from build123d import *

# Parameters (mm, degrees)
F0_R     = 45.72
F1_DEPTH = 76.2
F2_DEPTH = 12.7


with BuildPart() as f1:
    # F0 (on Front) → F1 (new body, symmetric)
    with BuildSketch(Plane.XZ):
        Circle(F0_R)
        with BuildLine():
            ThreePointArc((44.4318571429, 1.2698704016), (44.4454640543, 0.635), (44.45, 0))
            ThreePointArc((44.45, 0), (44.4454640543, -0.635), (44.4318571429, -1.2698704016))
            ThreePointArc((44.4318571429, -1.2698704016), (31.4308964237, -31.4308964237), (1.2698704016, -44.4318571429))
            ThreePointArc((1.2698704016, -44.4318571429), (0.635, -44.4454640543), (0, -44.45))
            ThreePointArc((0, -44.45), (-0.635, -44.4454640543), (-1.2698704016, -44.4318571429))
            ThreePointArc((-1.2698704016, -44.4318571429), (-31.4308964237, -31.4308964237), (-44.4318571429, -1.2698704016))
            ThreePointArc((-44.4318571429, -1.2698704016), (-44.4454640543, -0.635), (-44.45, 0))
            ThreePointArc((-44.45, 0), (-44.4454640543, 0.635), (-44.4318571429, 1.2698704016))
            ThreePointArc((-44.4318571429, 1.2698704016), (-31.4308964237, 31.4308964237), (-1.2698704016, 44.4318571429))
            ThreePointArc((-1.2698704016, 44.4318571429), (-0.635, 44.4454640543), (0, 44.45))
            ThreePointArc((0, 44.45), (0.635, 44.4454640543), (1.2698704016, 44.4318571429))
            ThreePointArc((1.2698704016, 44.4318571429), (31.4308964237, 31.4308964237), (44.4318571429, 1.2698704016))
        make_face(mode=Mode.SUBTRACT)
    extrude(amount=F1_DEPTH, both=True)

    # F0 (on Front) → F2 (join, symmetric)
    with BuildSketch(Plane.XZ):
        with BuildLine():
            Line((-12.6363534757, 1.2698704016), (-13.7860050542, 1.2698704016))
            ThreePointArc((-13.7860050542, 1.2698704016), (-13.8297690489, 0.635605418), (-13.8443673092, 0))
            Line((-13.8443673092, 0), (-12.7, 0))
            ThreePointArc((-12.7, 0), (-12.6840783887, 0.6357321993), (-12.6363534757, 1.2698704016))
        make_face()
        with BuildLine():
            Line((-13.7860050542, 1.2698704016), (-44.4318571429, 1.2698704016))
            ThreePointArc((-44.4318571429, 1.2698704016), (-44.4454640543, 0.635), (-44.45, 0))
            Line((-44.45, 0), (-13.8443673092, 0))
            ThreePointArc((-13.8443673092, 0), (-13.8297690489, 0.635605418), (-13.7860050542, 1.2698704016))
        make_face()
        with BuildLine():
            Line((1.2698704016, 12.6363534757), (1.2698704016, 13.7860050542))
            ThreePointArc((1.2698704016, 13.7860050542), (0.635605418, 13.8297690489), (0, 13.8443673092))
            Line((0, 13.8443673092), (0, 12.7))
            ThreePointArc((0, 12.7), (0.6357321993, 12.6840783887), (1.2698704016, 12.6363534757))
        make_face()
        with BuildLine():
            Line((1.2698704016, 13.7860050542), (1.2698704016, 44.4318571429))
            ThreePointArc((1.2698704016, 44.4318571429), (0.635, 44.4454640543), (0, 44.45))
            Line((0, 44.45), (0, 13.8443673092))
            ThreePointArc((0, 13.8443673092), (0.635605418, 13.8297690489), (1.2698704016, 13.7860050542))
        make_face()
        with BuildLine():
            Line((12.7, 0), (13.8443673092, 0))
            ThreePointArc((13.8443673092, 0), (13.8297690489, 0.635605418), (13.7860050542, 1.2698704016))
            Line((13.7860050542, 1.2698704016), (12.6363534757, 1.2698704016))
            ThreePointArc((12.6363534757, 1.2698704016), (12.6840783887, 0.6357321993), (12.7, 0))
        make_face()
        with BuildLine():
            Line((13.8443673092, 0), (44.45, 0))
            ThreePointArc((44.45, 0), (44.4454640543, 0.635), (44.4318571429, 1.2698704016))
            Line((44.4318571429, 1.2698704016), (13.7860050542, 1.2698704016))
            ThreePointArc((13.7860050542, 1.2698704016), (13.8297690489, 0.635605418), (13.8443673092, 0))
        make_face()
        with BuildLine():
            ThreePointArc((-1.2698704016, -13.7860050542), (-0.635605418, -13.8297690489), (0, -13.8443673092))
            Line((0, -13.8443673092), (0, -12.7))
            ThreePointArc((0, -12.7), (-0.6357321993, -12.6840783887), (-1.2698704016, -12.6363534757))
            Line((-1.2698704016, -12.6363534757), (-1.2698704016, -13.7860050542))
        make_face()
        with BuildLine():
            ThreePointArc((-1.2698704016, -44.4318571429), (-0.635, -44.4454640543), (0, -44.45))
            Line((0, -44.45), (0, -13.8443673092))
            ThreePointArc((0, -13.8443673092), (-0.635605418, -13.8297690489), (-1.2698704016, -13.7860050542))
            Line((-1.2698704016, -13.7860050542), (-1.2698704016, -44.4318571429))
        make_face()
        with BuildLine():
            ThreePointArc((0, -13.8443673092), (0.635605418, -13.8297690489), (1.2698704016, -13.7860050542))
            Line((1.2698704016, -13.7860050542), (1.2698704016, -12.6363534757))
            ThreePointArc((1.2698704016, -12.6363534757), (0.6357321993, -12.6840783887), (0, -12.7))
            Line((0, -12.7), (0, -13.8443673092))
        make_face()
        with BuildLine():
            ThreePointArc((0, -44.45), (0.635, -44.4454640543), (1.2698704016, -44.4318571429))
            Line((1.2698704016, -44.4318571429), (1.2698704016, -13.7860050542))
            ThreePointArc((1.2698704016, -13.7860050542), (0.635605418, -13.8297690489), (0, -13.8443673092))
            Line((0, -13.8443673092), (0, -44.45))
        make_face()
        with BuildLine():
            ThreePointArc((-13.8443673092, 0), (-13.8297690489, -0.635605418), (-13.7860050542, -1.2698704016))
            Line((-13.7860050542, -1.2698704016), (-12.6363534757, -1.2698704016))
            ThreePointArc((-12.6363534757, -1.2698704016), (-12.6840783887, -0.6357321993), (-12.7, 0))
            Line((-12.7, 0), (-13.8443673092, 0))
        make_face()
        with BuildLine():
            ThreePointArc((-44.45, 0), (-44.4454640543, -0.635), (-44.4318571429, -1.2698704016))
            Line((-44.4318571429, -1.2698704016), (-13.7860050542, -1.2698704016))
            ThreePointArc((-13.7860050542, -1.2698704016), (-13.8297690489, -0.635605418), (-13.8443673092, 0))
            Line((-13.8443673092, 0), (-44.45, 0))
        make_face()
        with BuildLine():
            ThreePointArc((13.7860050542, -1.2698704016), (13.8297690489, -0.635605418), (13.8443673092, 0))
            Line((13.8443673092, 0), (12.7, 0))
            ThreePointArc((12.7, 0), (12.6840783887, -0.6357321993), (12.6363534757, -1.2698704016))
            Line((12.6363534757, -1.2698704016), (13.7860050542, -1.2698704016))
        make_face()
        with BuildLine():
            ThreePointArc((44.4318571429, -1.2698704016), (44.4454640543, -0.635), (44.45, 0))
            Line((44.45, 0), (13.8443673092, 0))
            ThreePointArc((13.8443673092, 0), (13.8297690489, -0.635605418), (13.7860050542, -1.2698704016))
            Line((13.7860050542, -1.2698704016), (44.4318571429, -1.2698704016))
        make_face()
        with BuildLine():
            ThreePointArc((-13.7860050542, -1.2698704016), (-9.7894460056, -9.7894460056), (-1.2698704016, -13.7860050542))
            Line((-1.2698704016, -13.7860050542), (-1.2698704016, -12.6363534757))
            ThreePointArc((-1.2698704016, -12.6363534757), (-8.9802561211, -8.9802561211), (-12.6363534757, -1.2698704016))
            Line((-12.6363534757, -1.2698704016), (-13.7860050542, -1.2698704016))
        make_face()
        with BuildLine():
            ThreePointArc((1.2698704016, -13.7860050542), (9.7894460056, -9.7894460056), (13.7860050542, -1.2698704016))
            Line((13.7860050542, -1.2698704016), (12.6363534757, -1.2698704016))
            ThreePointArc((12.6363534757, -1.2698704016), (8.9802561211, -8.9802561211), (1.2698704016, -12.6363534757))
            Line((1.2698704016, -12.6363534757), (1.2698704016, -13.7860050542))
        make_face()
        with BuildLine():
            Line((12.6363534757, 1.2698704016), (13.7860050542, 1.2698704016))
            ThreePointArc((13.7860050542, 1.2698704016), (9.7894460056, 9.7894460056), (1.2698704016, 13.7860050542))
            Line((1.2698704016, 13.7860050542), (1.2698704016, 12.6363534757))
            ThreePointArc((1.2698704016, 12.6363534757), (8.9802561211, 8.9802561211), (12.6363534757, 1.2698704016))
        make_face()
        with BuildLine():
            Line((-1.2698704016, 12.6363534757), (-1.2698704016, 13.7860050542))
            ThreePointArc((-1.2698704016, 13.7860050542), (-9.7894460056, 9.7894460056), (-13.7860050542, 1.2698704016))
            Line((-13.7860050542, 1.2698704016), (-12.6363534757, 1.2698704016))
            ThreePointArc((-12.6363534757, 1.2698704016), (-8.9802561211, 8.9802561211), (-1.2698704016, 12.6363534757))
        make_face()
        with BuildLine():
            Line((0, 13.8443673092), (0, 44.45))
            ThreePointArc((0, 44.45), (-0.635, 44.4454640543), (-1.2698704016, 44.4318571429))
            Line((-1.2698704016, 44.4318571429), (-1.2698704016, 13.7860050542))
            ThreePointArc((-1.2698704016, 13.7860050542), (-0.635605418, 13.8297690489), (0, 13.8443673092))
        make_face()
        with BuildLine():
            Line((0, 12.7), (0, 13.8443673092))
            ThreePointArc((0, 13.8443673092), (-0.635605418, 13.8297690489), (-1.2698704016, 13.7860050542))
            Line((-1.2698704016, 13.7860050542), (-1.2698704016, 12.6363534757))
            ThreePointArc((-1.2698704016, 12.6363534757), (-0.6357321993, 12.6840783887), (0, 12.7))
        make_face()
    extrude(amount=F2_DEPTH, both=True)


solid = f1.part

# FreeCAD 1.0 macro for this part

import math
import FreeCAD as App
import Part
import Sketcher

V = App.Vector
Q = App.Units.Quantity

doc = App.newDocument("Part")
body = doc.addObject("PartDesign::Body", "Body")

# Sketch on XZ plane
sketch1 = doc.addObject("Sketcher::SketchObject", "Sketch")
body.addObject(sketch1)
sketch1.AttachmentSupport = (doc.XZ_Plane, [""])
sketch1.MapMode = "FlatFace"
sketch1.addGeometry([
    Part.Circle(V(0, 0, 0), V(0, 0, 1), 45.72),  # 0
    Part.ArcOfCircle(Part.Circle(V(0, 0, 0), V(0, 0, 1), 44.45), math.radians(1.637078), math.radians(88.362922)),  # 1
    Part.ArcOfCircle(Part.Circle(V(0, 0, 0), V(0, 0, 1), 44.45), math.radians(0), math.radians(1.637078)),  # 2
    Part.ArcOfCircle(Part.Circle(V(0, 0, 0), V(0, 0, 1), 44.45), math.radians(-1.637078), math.radians(0)),  # 3
    Part.ArcOfCircle(Part.Circle(V(0, 0, 0), V(0, 0, 1), 44.45), math.radians(-88.362922), math.radians(-1.637078)),  # 4
    Part.ArcOfCircle(Part.Circle(V(0, 0, 0), V(0, 0, 1), 44.45), math.radians(-90), math.radians(-88.362922)),  # 5
    Part.ArcOfCircle(Part.Circle(V(0, 0, 0), V(0, 0, 1), 44.45), math.radians(-91.637078), math.radians(-90)),  # 6
    Part.ArcOfCircle(Part.Circle(V(0, 0, 0), V(0, 0, 1), 44.45), math.radians(-178.362922), math.radians(-91.637078)),  # 7
    Part.ArcOfCircle(Part.Circle(V(0, 0, 0), V(0, 0, 1), 44.45), math.radians(180), math.radians(181.637078)),  # 8
    Part.ArcOfCircle(Part.Circle(V(0, 0, 0), V(0, 0, 1), 44.45), math.radians(178.362922), math.radians(180)),  # 9
    Part.ArcOfCircle(Part.Circle(V(0, 0, 0), V(0, 0, 1), 44.45), math.radians(91.637078), math.radians(178.362922)),  # 10
    Part.ArcOfCircle(Part.Circle(V(0, 0, 0), V(0, 0, 1), 44.45), math.radians(90), math.radians(91.637078)),  # 11
    Part.ArcOfCircle(Part.Circle(V(0, 0, 0), V(0, 0, 1), 44.45), math.radians(88.362922), math.radians(90)),  # 12
], False)
sketch1.addConstraint([
    Sketcher.Constraint("Tangent", 1, 1, 2, 2),
    Sketcher.Constraint("Tangent", 2, 1, 3, 2),
    Sketcher.Constraint("Tangent", 3, 1, 4, 2),
    Sketcher.Constraint("Tangent", 4, 1, 5, 2),
    Sketcher.Constraint("Tangent", 5, 1, 6, 2),
    Sketcher.Constraint("Tangent", 6, 1, 7, 2),
    Sketcher.Constraint("Tangent", 7, 1, 8, 2),
    Sketcher.Constraint("Tangent", 8, 1, 9, 2),
    Sketcher.Constraint("Tangent", 9, 1, 10, 2),
    Sketcher.Constraint("Tangent", 10, 1, 11, 2),
    Sketcher.Constraint("Tangent", 11, 1, 12, 2),
    Sketcher.Constraint("Tangent", 12, 1, 1, 2),
    Sketcher.Constraint("Coincident", 0, 3, -1, 1),
    Sketcher.Constraint("Coincident", 1, 3, -1, 1),
    Sketcher.Constraint("Coincident", 3, 3, -1, 1),
    Sketcher.Constraint("Coincident", 5, 3, -1, 1),
    Sketcher.Constraint("Coincident", 7, 3, -1, 1),
    Sketcher.Constraint("Coincident", 9, 3, -1, 1),
    Sketcher.Constraint("Equal", 10, 11),
    Sketcher.Constraint("PointOnObject", 2, 1, -1),
    Sketcher.Constraint("PointOnObject", 5, 1, -2),
    Sketcher.Constraint("PointOnObject", 8, 1, -1),
    Sketcher.Constraint("PointOnObject", 11, 1, -2),
    Sketcher.Constraint("Horizontal", 4, 1, 6, 1),
    Sketcher.Constraint("Horizontal", 3, 1, 7, 1),
    Sketcher.Constraint("Horizontal", 1, 1, 9, 1),
    Sketcher.Constraint("Horizontal", 10, 1, 12, 1),
    Sketcher.Constraint("Vertical", 1, 1, 3, 1),
    Sketcher.Constraint("Vertical", 6, 1, 10, 1),
    Sketcher.Constraint("Diameter", 0, Q("3.6 in")),
    Sketcher.Constraint("Radius", 1, Q("1.75 in")),
    Sketcher.Constraint("DistanceY", -1, 1, 1, 1, 1.26987),
    Sketcher.Constraint("DistanceX", -1, 1, 4, 1, 1.26987),
])
pad1 = doc.addObject("PartDesign::Pad", "Pad")
body.addObject(pad1)
pad1.Profile = sketch1
pad1.Length = Q("6 in")
pad1.Midplane = True

# Sketch on XZ plane
sketch2 = doc.addObject("Sketcher::SketchObject", "Sketch001")
body.addObject(sketch2)
sketch2.AttachmentSupport = (doc.XZ_Plane, [""])
sketch2.MapMode = "FlatFace"
sketch2.addGeometry([
    Part.LineSegment(V(-1.26987, 44.431857, 0), V(-1.26987, 13.786005, 0)),  # 0
    Part.ArcOfCircle(Part.Circle(V(0, 0, 0), V(0, 0, 1), 13.844367), math.radians(95.262835), math.radians(174.737165)),  # 1
    Part.LineSegment(V(-13.786005, 1.26987, 0), V(-44.431857, 1.26987, 0)),  # 2
    Part.ArcOfCircle(Part.Circle(V(0, 0, 0), V(0, 0, 1), 44.45), math.radians(178.362922), math.radians(180)),  # 3
    Part.ArcOfCircle(Part.Circle(V(0, 0, 0), V(0, 0, 1), 44.45), math.radians(180), math.radians(181.637078)),  # 4
    Part.LineSegment(V(-44.431857, -1.26987, 0), V(-13.786005, -1.26987, 0)),  # 5
    Part.ArcOfCircle(Part.Circle(V(0, 0, 0), V(0, 0, 1), 13.844367), math.radians(-174.737165), math.radians(-95.262835)),  # 6
    Part.LineSegment(V(-1.26987, -13.786005, 0), V(-1.26987, -44.431857, 0)),  # 7
    Part.ArcOfCircle(Part.Circle(V(0, 0, 0), V(0, 0, 1), 44.45), math.radians(-91.637078), math.radians(-90)),  # 8
    Part.ArcOfCircle(Part.Circle(V(0, 0, 0), V(0, 0, 1), 44.45), math.radians(-90), math.radians(-88.362922)),  # 9
    Part.LineSegment(V(1.26987, -44.431857, 0), V(1.26987, -13.786005, 0)),  # 10
    Part.ArcOfCircle(Part.Circle(V(0, 0, 0), V(0, 0, 1), 13.844367), math.radians(-84.737165), math.radians(-5.262835)),  # 11
    Part.LineSegment(V(13.786005, -1.26987, 0), V(44.431857, -1.26987, 0)),  # 12
    Part.ArcOfCircle(Part.Circle(V(0, 0, 0), V(0, 0, 1), 44.45), math.radians(-1.637078), math.radians(0)),  # 13
    Part.ArcOfCircle(Part.Circle(V(0, 0, 0), V(0, 0, 1), 44.45), math.radians(0), math.radians(1.637078)),  # 14
    Part.LineSegment(V(44.431857, 1.26987, 0), V(13.786005, 1.26987, 0)),  # 15
    Part.ArcOfCircle(Part.Circle(V(0, 0, 0), V(0, 0, 1), 13.844367), math.radians(5.262835), math.radians(84.737165)),  # 16
    Part.LineSegment(V(1.26987, 13.786005, 0), V(1.26987, 44.431857, 0)),  # 17
    Part.ArcOfCircle(Part.Circle(V(0, 0, 0), V(0, 0, 1), 44.45), math.radians(88.362922), math.radians(90)),  # 18
    Part.ArcOfCircle(Part.Circle(V(0, 0, 0), V(0, 0, 1), 44.45), math.radians(90), math.radians(91.637078)),  # 19
    Part.ArcOfCircle(Part.Circle(V(0, 0, 0), V(0, 0, 1), 12.7), math.radians(95.738583), math.radians(174.261417)),  # 20
    Part.ArcOfCircle(Part.Circle(V(0, 0, 0), V(0, 0, 1), 12.7), math.radians(90), math.radians(95.738583)),  # 21
    Part.ArcOfCircle(Part.Circle(V(0, 0, 0), V(0, 0, 1), 12.7), math.radians(84.261417), math.radians(90)),  # 22
    Part.ArcOfCircle(Part.Circle(V(0, 0, 0), V(0, 0, 1), 12.7), math.radians(5.738583), math.radians(84.261417)),  # 23
    Part.ArcOfCircle(Part.Circle(V(0, 0, 0), V(0, 0, 1), 12.7), math.radians(0), math.radians(5.738583)),  # 24
    Part.ArcOfCircle(Part.Circle(V(0, 0, 0), V(0, 0, 1), 12.7), math.radians(-5.738583), math.radians(0)),  # 25
    Part.ArcOfCircle(Part.Circle(V(0, 0, 0), V(0, 0, 1), 12.7), math.radians(-84.261417), math.radians(-5.738583)),  # 26
    Part.ArcOfCircle(Part.Circle(V(0, 0, 0), V(0, 0, 1), 12.7), math.radians(-90), math.radians(-84.261417)),  # 27
    Part.ArcOfCircle(Part.Circle(V(0, 0, 0), V(0, 0, 1), 12.7), math.radians(-95.738583), math.radians(-90)),  # 28
    Part.ArcOfCircle(Part.Circle(V(0, 0, 0), V(0, 0, 1), 12.7), math.radians(-174.261417), math.radians(-95.738583)),  # 29
    Part.ArcOfCircle(Part.Circle(V(0, 0, 0), V(0, 0, 1), 12.7), math.radians(180), math.radians(185.738583)),  # 30
    Part.ArcOfCircle(Part.Circle(V(0, 0, 0), V(0, 0, 1), 12.7), math.radians(174.261417), math.radians(180)),  # 31
], False)
sketch2.addConstraint([
    Sketcher.Constraint("Coincident", 0, 2, 1, 1),
    Sketcher.Constraint("Coincident", 1, 2, 2, 1),
    Sketcher.Constraint("Coincident", 2, 2, 3, 1),
    Sketcher.Constraint("Tangent", 3, 2, 4, 1),
    Sketcher.Constraint("Coincident", 4, 2, 5, 1),
    Sketcher.Constraint("Coincident", 5, 2, 6, 1),
    Sketcher.Constraint("Coincident", 6, 2, 7, 1),
    Sketcher.Constraint("Coincident", 7, 2, 8, 1),
    Sketcher.Constraint("Tangent", 8, 2, 9, 1),
    Sketcher.Constraint("Coincident", 9, 2, 10, 1),
    Sketcher.Constraint("Coincident", 10, 2, 11, 1),
    Sketcher.Constraint("Coincident", 11, 2, 12, 1),
    Sketcher.Constraint("Coincident", 12, 2, 13, 1),
    Sketcher.Constraint("Tangent", 13, 2, 14, 1),
    Sketcher.Constraint("Coincident", 14, 2, 15, 1),
    Sketcher.Constraint("Coincident", 15, 2, 16, 1),
    Sketcher.Constraint("Coincident", 16, 2, 17, 1),
    Sketcher.Constraint("Coincident", 17, 2, 18, 1),
    Sketcher.Constraint("Tangent", 18, 2, 19, 1),
    Sketcher.Constraint("Coincident", 19, 2, 0, 1),
    Sketcher.Constraint("Tangent", 20, 1, 21, 2),
    Sketcher.Constraint("Tangent", 21, 1, 22, 2),
    Sketcher.Constraint("Tangent", 22, 1, 23, 2),
    Sketcher.Constraint("Tangent", 23, 1, 24, 2),
    Sketcher.Constraint("Tangent", 24, 1, 25, 2),
    Sketcher.Constraint("Tangent", 25, 1, 26, 2),
    Sketcher.Constraint("Tangent", 26, 1, 27, 2),
    Sketcher.Constraint("Tangent", 27, 1, 28, 2),
    Sketcher.Constraint("Tangent", 28, 1, 29, 2),
    Sketcher.Constraint("Tangent", 29, 1, 30, 2),
    Sketcher.Constraint("Tangent", 30, 1, 31, 2),
    Sketcher.Constraint("Tangent", 31, 1, 20, 2),
    Sketcher.Constraint("Vertical", 0),
    Sketcher.Constraint("Horizontal", 2),
    Sketcher.Constraint("Horizontal", 5),
    Sketcher.Constraint("Vertical", 7),
    Sketcher.Constraint("Vertical", 10),
    Sketcher.Constraint("Horizontal", 12),
    Sketcher.Constraint("Horizontal", 15),
    Sketcher.Constraint("Vertical", 17),
    Sketcher.Constraint("Coincident", 1, 3, -1, 1),
    Sketcher.Constraint("Coincident", 3, 3, -1, 1),
    Sketcher.Constraint("Coincident", 6, 3, -1, 1),
    Sketcher.Constraint("Coincident", 8, 3, -1, 1),
    Sketcher.Constraint("Coincident", 11, 3, -1, 1),
    Sketcher.Constraint("Coincident", 13, 3, -1, 1),
    Sketcher.Constraint("Coincident", 16, 3, -1, 1),
    Sketcher.Constraint("Coincident", 18, 3, -1, 1),
    Sketcher.Constraint("Coincident", 20, 3, -1, 1),
    Sketcher.Constraint("Coincident", 22, 3, -1, 1),
    Sketcher.Constraint("Coincident", 24, 3, -1, 1),
    Sketcher.Constraint("Coincident", 26, 3, -1, 1),
    Sketcher.Constraint("Coincident", 28, 3, -1, 1),
    Sketcher.Constraint("Equal", 3, 4),
    Sketcher.Constraint("Equal", 1, 6),
    Sketcher.Constraint("Equal", 4, 8),
    Sketcher.Constraint("Equal", 8, 9),
    Sketcher.Constraint("Equal", 6, 11),
    Sketcher.Constraint("Equal", 9, 13),
    Sketcher.Constraint("Equal", 13, 14),
    Sketcher.Constraint("Equal", 11, 16),
    Sketcher.Constraint("Equal", 14, 18),
    Sketcher.Constraint("Equal", 18, 19),
    Sketcher.Constraint("Equal", 28, 29),
    Sketcher.Constraint("PointOnObject", 3, 2, -1),
    Sketcher.Constraint("PointOnObject", 8, 2, -2),
    Sketcher.Constraint("PointOnObject", 13, 2, -1),
    Sketcher.Constraint("PointOnObject", 18, 2, -2),
    Sketcher.Constraint("PointOnObject", 21, 1, -2),
    Sketcher.Constraint("PointOnObject", 24, 1, -1),
    Sketcher.Constraint("PointOnObject", 27, 1, -2),
    Sketcher.Constraint("PointOnObject", 30, 1, -1),
    Sketcher.Constraint("Horizontal", 7, 2, 9, 2),
    Sketcher.Constraint("Horizontal", 5, 2, 11, 2),
    Sketcher.Constraint("Horizontal", 2, 2, 14, 2),
    Sketcher.Constraint("Horizontal", 0, 2, 16, 2),
    Sketcher.Constraint("Horizontal", 20, 1, 22, 1),
    Sketcher.Constraint("Horizontal", 15, 2, 23, 1),
    Sketcher.Constraint("Horizontal", 12, 2, 25, 1),
    Sketcher.Constraint("Horizontal", 26, 1, 28, 1),
    Sketcher.Constraint("Horizontal", 25, 1, 29, 1),
    Sketcher.Constraint("Horizontal", 23, 1, 31, 1),
    Sketcher.Constraint("Vertical", 2, 2, 4, 2),
    Sketcher.Constraint("Vertical", 0, 2, 6, 2),
    Sketcher.Constraint("Vertical", 19, 2, 20, 1),
    Sketcher.Constraint("Vertical", 22, 1, 26, 1),
    Sketcher.Constraint("Equal", 15, 0),
    Sketcher.Constraint("Radius", 20, Q("0.5 in")),
    Sketcher.Constraint("Radius", 3, Q("1.75 in")),
    Sketcher.Constraint("Radius", 1, 13.844367),
    Sketcher.Constraint("DistanceX", 2, 2, 2, 1, 30.645852),
])
pad2 = doc.addObject("PartDesign::Pad", "Pad001")
body.addObject(pad2)
pad2.Profile = sketch2
pad2.Length = Q("1 in")
pad2.Midplane = True

doc.recompute()
